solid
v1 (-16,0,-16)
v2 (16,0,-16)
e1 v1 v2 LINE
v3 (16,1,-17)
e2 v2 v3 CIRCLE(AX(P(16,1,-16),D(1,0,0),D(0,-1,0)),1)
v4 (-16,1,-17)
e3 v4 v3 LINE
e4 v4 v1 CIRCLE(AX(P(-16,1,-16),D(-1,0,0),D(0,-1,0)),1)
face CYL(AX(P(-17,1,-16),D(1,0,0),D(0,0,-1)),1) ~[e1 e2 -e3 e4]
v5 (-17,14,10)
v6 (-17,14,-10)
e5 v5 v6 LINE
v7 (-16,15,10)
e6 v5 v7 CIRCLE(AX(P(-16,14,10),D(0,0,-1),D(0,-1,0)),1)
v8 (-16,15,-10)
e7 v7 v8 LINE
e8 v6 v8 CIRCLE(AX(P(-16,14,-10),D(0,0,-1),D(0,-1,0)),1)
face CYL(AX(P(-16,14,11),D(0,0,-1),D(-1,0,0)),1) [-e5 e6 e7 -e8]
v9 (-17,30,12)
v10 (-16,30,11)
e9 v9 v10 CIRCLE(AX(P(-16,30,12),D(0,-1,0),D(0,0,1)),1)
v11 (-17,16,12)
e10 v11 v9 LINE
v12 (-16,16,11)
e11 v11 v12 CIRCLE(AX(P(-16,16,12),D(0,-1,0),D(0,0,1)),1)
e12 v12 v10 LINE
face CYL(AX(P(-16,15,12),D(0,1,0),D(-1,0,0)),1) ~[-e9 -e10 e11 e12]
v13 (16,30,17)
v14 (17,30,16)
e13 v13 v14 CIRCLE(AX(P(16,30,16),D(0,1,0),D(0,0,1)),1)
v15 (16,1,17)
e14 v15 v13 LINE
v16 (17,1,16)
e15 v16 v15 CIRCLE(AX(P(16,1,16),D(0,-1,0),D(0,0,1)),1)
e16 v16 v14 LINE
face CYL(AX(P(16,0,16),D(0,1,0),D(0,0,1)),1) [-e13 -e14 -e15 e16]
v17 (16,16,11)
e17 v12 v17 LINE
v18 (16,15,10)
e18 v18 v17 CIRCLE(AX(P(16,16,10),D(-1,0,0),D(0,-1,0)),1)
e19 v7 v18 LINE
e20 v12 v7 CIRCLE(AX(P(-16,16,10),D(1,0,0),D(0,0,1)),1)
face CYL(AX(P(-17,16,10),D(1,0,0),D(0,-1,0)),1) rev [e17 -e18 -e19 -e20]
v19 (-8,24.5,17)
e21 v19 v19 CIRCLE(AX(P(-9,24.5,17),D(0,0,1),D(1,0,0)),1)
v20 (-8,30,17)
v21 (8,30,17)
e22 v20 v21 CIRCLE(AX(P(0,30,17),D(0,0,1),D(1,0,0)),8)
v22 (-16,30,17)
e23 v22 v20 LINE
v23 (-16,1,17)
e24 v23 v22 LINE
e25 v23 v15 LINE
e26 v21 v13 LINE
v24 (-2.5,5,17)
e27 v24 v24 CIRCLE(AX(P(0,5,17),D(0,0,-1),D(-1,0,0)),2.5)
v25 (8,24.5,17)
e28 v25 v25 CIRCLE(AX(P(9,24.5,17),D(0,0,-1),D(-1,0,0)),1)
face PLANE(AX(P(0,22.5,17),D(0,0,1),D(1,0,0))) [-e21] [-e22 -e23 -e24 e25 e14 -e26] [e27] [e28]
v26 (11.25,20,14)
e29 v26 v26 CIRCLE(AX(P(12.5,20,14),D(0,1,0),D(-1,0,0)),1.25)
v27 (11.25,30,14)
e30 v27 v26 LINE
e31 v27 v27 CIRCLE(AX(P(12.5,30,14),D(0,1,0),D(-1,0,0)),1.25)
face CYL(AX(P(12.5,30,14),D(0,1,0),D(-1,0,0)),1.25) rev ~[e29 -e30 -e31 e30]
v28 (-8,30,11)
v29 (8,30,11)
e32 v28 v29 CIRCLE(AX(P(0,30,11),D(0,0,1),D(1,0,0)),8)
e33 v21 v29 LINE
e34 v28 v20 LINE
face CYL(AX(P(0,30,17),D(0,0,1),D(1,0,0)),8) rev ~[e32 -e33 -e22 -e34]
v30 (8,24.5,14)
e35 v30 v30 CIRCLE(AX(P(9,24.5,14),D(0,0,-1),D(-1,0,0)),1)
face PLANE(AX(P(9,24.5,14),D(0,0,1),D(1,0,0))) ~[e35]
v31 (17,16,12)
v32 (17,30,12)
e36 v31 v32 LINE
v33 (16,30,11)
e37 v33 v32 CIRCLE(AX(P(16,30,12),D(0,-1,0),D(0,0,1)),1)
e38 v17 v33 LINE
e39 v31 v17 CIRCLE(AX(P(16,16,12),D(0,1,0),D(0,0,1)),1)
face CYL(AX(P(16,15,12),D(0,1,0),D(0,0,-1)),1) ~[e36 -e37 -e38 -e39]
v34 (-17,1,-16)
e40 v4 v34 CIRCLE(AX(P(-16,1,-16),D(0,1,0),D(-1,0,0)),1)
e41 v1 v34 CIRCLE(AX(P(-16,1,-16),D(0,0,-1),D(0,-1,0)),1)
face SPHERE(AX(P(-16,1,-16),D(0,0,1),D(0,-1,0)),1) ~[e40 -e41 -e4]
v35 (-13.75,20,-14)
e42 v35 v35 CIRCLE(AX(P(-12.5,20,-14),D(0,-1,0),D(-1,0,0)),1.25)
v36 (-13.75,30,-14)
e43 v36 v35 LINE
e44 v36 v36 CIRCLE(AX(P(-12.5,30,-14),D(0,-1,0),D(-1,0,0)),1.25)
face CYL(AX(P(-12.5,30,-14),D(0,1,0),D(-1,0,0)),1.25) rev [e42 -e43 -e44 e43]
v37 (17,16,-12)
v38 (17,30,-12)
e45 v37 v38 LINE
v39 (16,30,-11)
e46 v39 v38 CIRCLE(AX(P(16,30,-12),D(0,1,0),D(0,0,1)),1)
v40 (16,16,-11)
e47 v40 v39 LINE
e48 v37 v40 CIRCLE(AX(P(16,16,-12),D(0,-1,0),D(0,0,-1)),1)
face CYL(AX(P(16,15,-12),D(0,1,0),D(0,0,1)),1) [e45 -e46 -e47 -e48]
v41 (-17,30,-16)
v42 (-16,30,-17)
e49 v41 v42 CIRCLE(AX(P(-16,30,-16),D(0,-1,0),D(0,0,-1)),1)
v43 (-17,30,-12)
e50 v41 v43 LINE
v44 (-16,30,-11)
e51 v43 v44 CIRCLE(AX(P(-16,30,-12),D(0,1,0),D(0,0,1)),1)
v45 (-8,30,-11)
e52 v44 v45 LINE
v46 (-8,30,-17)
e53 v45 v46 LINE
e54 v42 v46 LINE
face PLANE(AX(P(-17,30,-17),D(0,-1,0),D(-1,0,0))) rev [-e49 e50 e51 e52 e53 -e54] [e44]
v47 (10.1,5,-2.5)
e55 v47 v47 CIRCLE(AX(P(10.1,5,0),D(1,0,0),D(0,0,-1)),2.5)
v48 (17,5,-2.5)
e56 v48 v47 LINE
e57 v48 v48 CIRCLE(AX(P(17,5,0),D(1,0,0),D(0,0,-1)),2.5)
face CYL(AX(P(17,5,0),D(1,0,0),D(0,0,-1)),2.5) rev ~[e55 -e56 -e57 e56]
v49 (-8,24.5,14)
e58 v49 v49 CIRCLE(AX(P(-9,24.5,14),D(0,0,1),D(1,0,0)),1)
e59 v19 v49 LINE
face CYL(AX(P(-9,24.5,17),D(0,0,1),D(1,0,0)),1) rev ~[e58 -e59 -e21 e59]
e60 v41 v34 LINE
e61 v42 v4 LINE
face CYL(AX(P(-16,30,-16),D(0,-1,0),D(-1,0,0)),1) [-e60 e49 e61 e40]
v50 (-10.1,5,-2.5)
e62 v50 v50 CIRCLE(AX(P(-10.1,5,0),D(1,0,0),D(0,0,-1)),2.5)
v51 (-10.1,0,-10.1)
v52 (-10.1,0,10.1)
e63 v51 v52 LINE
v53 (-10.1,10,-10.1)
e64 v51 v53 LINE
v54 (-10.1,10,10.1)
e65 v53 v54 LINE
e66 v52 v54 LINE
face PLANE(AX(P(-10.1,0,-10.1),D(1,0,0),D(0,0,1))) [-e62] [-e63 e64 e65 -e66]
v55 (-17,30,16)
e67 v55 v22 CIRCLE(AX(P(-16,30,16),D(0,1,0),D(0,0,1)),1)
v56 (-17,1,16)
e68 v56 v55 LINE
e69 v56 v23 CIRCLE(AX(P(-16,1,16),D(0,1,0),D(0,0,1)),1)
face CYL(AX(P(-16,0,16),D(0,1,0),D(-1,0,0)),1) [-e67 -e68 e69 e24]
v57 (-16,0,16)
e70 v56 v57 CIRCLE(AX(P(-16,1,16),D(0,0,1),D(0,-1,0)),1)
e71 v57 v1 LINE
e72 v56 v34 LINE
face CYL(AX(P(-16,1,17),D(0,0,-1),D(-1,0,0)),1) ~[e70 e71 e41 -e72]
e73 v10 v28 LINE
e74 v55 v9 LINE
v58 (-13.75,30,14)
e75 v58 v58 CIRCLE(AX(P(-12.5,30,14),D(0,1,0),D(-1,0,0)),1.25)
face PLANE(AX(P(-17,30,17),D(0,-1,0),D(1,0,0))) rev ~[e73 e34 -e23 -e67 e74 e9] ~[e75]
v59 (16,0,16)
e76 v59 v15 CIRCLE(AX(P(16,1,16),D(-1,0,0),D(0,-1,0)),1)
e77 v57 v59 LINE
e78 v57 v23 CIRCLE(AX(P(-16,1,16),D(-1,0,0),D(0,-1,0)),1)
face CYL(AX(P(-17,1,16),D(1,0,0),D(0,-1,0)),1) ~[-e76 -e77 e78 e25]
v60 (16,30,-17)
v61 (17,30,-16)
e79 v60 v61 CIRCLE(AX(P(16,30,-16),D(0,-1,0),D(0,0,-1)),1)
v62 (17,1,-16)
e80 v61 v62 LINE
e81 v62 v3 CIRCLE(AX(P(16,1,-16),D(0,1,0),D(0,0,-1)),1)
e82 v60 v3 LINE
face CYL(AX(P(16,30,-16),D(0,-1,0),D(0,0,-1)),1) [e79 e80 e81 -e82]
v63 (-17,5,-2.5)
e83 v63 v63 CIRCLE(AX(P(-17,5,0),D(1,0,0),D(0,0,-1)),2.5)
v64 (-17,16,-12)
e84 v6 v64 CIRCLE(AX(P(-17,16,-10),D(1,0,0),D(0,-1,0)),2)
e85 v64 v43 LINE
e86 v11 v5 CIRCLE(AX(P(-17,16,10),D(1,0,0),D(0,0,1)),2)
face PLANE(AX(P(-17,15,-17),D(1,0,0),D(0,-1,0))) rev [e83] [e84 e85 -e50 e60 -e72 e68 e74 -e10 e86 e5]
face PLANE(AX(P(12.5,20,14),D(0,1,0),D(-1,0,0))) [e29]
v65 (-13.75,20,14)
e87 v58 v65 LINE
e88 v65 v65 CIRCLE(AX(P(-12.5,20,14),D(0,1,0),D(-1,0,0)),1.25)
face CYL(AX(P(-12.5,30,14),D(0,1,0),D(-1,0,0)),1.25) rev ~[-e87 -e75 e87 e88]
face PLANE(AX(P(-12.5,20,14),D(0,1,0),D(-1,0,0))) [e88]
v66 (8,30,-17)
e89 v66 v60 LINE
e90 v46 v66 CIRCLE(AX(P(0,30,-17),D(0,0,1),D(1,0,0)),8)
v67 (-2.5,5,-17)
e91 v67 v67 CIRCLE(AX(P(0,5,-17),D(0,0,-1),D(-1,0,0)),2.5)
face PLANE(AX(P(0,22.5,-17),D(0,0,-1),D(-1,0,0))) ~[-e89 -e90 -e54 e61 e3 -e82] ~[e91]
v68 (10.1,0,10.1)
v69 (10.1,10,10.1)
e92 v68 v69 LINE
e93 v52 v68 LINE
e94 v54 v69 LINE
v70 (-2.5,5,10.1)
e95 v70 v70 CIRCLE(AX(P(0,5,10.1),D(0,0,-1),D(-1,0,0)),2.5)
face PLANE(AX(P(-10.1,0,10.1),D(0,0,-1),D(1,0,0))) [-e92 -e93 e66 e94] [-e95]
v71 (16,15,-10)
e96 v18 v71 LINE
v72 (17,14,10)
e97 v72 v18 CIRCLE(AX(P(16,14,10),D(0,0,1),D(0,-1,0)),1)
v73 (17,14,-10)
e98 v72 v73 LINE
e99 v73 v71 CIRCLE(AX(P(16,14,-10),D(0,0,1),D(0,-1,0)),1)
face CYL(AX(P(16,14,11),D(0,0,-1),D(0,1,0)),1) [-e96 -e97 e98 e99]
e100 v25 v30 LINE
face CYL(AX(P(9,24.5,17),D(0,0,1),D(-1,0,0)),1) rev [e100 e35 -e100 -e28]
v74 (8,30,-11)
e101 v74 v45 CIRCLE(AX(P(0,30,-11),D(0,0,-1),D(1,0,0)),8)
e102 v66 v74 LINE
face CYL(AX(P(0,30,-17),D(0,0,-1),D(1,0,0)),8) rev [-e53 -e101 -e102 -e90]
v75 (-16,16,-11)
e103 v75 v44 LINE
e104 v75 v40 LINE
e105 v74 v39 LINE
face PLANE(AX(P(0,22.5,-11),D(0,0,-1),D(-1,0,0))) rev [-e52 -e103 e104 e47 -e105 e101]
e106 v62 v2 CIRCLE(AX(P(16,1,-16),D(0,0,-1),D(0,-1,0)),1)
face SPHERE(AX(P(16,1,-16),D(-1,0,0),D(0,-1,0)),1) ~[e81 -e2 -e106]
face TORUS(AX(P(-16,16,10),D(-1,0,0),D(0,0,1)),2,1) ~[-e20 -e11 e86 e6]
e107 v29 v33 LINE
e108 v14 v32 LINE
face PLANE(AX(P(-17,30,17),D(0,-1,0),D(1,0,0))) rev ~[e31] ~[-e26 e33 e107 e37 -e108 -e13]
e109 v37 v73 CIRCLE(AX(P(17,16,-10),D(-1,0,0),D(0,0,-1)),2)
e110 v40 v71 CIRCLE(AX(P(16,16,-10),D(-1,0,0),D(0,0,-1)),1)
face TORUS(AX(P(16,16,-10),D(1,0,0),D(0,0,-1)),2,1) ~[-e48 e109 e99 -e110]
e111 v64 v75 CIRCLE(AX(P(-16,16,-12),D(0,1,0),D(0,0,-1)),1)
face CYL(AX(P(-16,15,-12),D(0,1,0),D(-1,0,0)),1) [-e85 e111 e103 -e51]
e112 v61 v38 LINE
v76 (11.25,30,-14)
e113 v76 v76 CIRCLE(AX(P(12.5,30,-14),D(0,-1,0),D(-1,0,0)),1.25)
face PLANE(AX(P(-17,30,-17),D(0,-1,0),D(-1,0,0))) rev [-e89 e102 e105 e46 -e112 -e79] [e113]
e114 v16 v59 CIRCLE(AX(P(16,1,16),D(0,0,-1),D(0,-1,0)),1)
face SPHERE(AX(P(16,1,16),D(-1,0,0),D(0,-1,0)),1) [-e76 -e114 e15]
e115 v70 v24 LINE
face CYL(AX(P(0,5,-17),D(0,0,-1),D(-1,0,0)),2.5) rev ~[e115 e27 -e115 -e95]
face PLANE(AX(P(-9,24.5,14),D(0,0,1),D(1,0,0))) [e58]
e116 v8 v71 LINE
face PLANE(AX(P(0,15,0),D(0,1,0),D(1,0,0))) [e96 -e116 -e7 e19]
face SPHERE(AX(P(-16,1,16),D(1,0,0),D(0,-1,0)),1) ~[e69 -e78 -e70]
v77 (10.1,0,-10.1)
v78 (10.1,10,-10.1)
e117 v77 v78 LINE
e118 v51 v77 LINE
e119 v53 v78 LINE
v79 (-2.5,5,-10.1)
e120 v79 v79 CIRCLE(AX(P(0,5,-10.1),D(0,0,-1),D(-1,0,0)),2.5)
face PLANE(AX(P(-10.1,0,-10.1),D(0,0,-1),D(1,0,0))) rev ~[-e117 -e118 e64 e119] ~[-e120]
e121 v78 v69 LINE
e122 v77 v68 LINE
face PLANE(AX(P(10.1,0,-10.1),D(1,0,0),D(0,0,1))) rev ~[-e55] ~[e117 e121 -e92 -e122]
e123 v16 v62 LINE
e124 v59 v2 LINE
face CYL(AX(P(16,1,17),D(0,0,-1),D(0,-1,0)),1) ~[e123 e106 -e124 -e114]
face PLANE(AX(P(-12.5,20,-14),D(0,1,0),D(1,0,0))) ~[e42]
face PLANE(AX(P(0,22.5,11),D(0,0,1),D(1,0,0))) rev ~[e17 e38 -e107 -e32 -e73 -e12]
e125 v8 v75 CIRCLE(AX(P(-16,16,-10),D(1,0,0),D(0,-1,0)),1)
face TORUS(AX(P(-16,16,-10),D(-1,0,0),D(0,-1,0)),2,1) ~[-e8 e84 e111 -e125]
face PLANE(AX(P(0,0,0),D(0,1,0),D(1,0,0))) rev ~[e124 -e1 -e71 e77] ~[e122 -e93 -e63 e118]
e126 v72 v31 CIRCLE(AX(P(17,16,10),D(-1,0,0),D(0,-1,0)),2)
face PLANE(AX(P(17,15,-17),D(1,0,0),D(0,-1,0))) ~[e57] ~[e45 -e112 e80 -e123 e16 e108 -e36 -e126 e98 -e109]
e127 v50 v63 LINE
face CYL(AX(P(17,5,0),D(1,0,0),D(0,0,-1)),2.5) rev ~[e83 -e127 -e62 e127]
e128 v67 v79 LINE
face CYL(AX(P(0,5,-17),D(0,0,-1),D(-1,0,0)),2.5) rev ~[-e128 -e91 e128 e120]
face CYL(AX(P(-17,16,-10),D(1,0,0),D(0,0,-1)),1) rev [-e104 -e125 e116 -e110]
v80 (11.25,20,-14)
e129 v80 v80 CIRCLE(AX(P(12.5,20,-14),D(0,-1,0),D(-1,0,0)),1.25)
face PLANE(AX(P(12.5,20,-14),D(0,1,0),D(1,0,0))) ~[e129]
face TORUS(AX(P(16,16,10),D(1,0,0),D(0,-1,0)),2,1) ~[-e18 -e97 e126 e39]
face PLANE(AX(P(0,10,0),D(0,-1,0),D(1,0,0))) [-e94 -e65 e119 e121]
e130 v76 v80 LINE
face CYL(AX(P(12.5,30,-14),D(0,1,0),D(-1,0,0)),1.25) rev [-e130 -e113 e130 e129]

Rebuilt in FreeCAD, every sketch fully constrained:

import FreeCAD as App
import Part
import Sketcher


def edges_at(feature, points):
    """Names of the edges that pass closest to the given points."""
    edges = feature.Shape.Edges
    near = lambda p: min(range(len(edges)), key=lambda i: edges[i].distToShape(Part.Vertex(*p))[0])
    return sorted({f"Edge{near(p) + 1}" for p in points})

doc = App.newDocument("Part")
body = doc.addObject("PartDesign::Body", "Body")

sketch1 = body.newObject("Sketcher::SketchObject", "Sketch")
sketch1.AttachmentSupport = (doc.getObject("XZ_Plane"), [""])
sketch1.MapMode = "FlatFace"
sketch1.addGeometry([
    Part.LineSegment(App.Vector(-17, -17, 0), App.Vector(-17, 17, 0)),
    Part.LineSegment(App.Vector(-17, 17, 0), App.Vector(17, 17, 0)),
    Part.LineSegment(App.Vector(17, 17, 0), App.Vector(17, -17, 0)),
    Part.LineSegment(App.Vector(17, -17, 0), App.Vector(-17, -17, 0)),
], False)
sketch1.addConstraint([
    Sketcher.Constraint("Coincident", 0, 2, 1, 1),
    Sketcher.Constraint("Coincident", 1, 2, 2, 1),
    Sketcher.Constraint("Coincident", 2, 2, 3, 1),
    Sketcher.Constraint("Coincident", 3, 2, 0, 1),
    Sketcher.Constraint("Vertical", 0),
    Sketcher.Constraint("Horizontal", 1),
    Sketcher.Constraint("Vertical", 2),
    Sketcher.Constraint("Horizontal", 3),
    Sketcher.Constraint("Symmetric", 0, 2, 2, 2, -1, 1),
    Sketcher.Constraint("Equal", 3, 0),
    Sketcher.Constraint("DistanceX", 1, 1, 1, 2, 34.0),
])
pad1 = body.newObject("PartDesign::Pad", "Pad")
pad1.Profile = sketch1
pad1.Length = 15
pad1.Reversed = True

sketch2 = body.newObject("Sketcher::SketchObject", "Sketch001")
sketch2.AttachmentSupport = (doc.getObject("XZ_Plane"), [""])
sketch2.MapMode = "FlatFace"
sketch2.addGeometry([
    Part.LineSegment(App.Vector(-10.1, 10.1, 0), App.Vector(-10.1, -10.1, 0)),
    Part.LineSegment(App.Vector(-10.1, -10.1, 0), App.Vector(10.1, -10.1, 0)),
    Part.LineSegment(App.Vector(10.1, -10.1, 0), App.Vector(10.1, 10.1, 0)),
    Part.LineSegment(App.Vector(10.1, 10.1, 0), App.Vector(-10.1, 10.1, 0)),
], False)
sketch2.addConstraint([
    Sketcher.Constraint("Coincident", 0, 2, 1, 1),
    Sketcher.Constraint("Coincident", 1, 2, 2, 1),
    Sketcher.Constraint("Coincident", 2, 2, 3, 1),
    Sketcher.Constraint("Coincident", 3, 2, 0, 1),
    Sketcher.Constraint("Vertical", 0),
    Sketcher.Constraint("Horizontal", 1),
    Sketcher.Constraint("Vertical", 2),
    Sketcher.Constraint("Horizontal", 3),
    Sketcher.Constraint("Symmetric", 0, 2, 2, 2, -1, 1),
    Sketcher.Constraint("Equal", 3, 0),
    Sketcher.Constraint("DistanceX", 1, 1, 1, 2, 20.2),
])
pocket1 = body.newObject("PartDesign::Pocket", "Pocket")
pocket1.Profile = sketch2
pocket1.Length = 10

sketch3 = body.newObject("Sketcher::SketchObject", "Sketch002")
sketch3.AttachmentSupport = (doc.getObject("XY_Plane"), [""])
sketch3.MapMode = "FlatFace"
sketch3.AttachmentOffset = App.Placement(App.Vector(0, 0, 17), App.Rotation())
sketch3.addGeometry([
    Part.LineSegment(App.Vector(-17, 30, 0), App.Vector(-17, 15, 0)),
    Part.LineSegment(App.Vector(-17, 15, 0), App.Vector(17, 15, 0)),
    Part.LineSegment(App.Vector(17, 15, 0), App.Vector(17, 30, 0)),
    Part.LineSegment(App.Vector(17, 30, 0), App.Vector(-17, 30, 0)),
], False)
sketch3.addConstraint([
    Sketcher.Constraint("Coincident", 0, 2, 1, 1),
    Sketcher.Constraint("Coincident", 1, 2, 2, 1),
    Sketcher.Constraint("Coincident", 2, 2, 3, 1),
    Sketcher.Constraint("Coincident", 3, 2, 0, 1),
    Sketcher.Constraint("Vertical", 0),
    Sketcher.Constraint("Horizontal", 1),
    Sketcher.Constraint("Vertical", 2),
    Sketcher.Constraint("Horizontal", 3),
    Sketcher.Constraint("DistanceX", 1, 1, 1, 2, 34.0),
    Sketcher.Constraint("DistanceY", 0, 2, 0, 1, 15.0),
    Sketcher.Constraint("DistanceX", 0, 2, -1, 1, 17.0),
    Sketcher.Constraint("DistanceY", -1, 1, 0, 2, 15.0),
])
pad2 = body.newObject("PartDesign::Pad", "Pad001")
pad2.Profile = sketch3
pad2.Length = 6
pad2.Reversed = True

sketch4 = body.newObject("Sketcher::SketchObject", "Sketch003")
sketch4.AttachmentSupport = (doc.getObject("XY_Plane"), [""])
sketch4.MapMode = "FlatFace"
sketch4.AttachmentOffset = App.Placement(App.Vector(0, 0, 17), App.Rotation())
sketch4.addGeometry(Part.Circle(App.Vector(0, 30, 0), App.Vector(0, 0, 1), 8), False)
sketch4.addConstraint([
    Sketcher.Constraint("PointOnObject", 0, 3, -2),
    Sketcher.Constraint("Diameter", 0, 16.0),
    Sketcher.Constraint("DistanceY", -1, 1, 0, 3, 30.0),
])
pocket2 = body.newObject("PartDesign::Pocket", "Pocket001")
pocket2.Profile = sketch4
pocket2.Type = "ThroughAll"

sketch5 = body.newObject("Sketcher::SketchObject", "Sketch004")
sketch5.AttachmentSupport = (doc.getObject("XZ_Plane"), [""])
sketch5.MapMode = "FlatFace"
sketch5.AttachmentOffset = App.Placement(App.Vector(0, 0, -30), App.Rotation())
sketch5.addGeometry([
    Part.Circle(App.Vector(-12.5, 14, 0), App.Vector(0, 0, 1), 1.25),
    Part.Circle(App.Vector(12.5, 14, 0), App.Vector(0, 0, 1), 1.25),
], False)
sketch5.addConstraint([
    Sketcher.Constraint("Equal", 0, 1),
    Sketcher.Constraint("Symmetric", 0, 3, 1, 3, -2),
    Sketcher.Constraint("Diameter", 0, 2.5),
    Sketcher.Constraint("DistanceY", -1, 1, 0, 3, 14.0),
    Sketcher.Constraint("DistanceX", 0, 3, 1, 3, 25.0),
])
pocket3 = body.newObject("PartDesign::Pocket", "Pocket002")
pocket3.Profile = sketch5
pocket3.Length = 10
pocket3.Reversed = True
doc.recompute()

mirrored = body.newObject("PartDesign::Mirrored", "Mirrored")
mirrored.Originals = [pad2, pocket2, pocket3]
mirrored.MirrorPlane = (doc.getObject("XY_Plane"), [""])
body.Tip = mirrored

sketch6 = body.newObject("Sketcher::SketchObject", "Sketch005")
sketch6.AttachmentSupport = (doc.getObject("XY_Plane"), [""])
sketch6.MapMode = "FlatFace"
sketch6.AttachmentOffset = App.Placement(App.Vector(0, 0, -17), App.Rotation())
sketch6.addGeometry(Part.Circle(App.Vector(0, 5, 0), App.Vector(0, 0, 1), 2.5), False)
sketch6.addConstraint([
    Sketcher.Constraint("PointOnObject", 0, 3, -2),
    Sketcher.Constraint("Diameter", 0, 5.0),
    Sketcher.Constraint("DistanceY", -1, 1, 0, 3, 5.0),
])
pocket4 = body.newObject("PartDesign::Pocket", "Pocket003")
pocket4.Profile = sketch6
pocket4.Type = "ThroughAll"
pocket4.Reversed = True

sketch7 = body.newObject("Sketcher::SketchObject", "Sketch006")
sketch7.AttachmentSupport = (doc.getObject("YZ_Plane"), [""])
sketch7.MapMode = "FlatFace"
sketch7.AttachmentOffset = App.Placement(App.Vector(0, 0, 17), App.Rotation())
sketch7.addGeometry(Part.Circle(App.Vector(5, 0, 0), App.Vector(0, 0, 1), 2.5), False)
sketch7.addConstraint([
    Sketcher.Constraint("PointOnObject", 0, 3, -1),
    Sketcher.Constraint("Diameter", 0, 5.0),
    Sketcher.Constraint("DistanceX", -1, 1, 0, 3, 5.0),
])
pocket5 = body.newObject("PartDesign::Pocket", "Pocket004")
pocket5.Profile = sketch7
pocket5.Type = "ThroughAll"
doc.recompute()

fillet = body.newObject("PartDesign::Fillet", "Fillet")
fillet.Base = (pocket5, edges_at(pocket5, [
    (17, 15, 0),
    (17, 22.5, 11),
    (0, 15, 11),
    (-17, 22.5, 11),
    (0, 0, 17),
    (-17, 0, 0),
    (0, 0, -17),
    (17, 0, 0),
    (-17, 15, 0),
    (-17, 22.5, -11),
    (0, 15, -11),
    (17, 22.5, -11),
    (17, 15, 17),
    (-17, 15, 17),
    (-17, 15, -17),
    (17, 15, -17),
]))
fillet.Radius = 1

sketch8 = body.newObject("Sketcher::SketchObject", "Sketch007")
sketch8.AttachmentSupport = (doc.getObject("XY_Plane"), [""])
sketch8.MapMode = "FlatFace"
sketch8.AttachmentOffset = App.Placement(App.Vector(0, 0, 17), App.Rotation())
sketch8.addGeometry(Part.Circle(App.Vector(-9, 24.5, 0), App.Vector(0, 0, 1), 1), False)
sketch8.addConstraint([
    Sketcher.Constraint("Diameter", 0, 2.0),
    Sketcher.Constraint("DistanceX", 0, 3, -1, 1, 9.0),
    Sketcher.Constraint("DistanceY", -1, 1, 0, 3, 24.5),
])
pocket6 = body.newObject("PartDesign::Pocket", "Pocket005")
pocket6.Profile = sketch8
pocket6.Length = 3
doc.recompute()

mirrored2 = body.newObject("PartDesign::Mirrored", "Mirrored001")
mirrored2.Originals = [pocket6]
mirrored2.MirrorPlane = (doc.getObject("YZ_Plane"), [""])
body.Tip = mirrored2

doc.recompute()
